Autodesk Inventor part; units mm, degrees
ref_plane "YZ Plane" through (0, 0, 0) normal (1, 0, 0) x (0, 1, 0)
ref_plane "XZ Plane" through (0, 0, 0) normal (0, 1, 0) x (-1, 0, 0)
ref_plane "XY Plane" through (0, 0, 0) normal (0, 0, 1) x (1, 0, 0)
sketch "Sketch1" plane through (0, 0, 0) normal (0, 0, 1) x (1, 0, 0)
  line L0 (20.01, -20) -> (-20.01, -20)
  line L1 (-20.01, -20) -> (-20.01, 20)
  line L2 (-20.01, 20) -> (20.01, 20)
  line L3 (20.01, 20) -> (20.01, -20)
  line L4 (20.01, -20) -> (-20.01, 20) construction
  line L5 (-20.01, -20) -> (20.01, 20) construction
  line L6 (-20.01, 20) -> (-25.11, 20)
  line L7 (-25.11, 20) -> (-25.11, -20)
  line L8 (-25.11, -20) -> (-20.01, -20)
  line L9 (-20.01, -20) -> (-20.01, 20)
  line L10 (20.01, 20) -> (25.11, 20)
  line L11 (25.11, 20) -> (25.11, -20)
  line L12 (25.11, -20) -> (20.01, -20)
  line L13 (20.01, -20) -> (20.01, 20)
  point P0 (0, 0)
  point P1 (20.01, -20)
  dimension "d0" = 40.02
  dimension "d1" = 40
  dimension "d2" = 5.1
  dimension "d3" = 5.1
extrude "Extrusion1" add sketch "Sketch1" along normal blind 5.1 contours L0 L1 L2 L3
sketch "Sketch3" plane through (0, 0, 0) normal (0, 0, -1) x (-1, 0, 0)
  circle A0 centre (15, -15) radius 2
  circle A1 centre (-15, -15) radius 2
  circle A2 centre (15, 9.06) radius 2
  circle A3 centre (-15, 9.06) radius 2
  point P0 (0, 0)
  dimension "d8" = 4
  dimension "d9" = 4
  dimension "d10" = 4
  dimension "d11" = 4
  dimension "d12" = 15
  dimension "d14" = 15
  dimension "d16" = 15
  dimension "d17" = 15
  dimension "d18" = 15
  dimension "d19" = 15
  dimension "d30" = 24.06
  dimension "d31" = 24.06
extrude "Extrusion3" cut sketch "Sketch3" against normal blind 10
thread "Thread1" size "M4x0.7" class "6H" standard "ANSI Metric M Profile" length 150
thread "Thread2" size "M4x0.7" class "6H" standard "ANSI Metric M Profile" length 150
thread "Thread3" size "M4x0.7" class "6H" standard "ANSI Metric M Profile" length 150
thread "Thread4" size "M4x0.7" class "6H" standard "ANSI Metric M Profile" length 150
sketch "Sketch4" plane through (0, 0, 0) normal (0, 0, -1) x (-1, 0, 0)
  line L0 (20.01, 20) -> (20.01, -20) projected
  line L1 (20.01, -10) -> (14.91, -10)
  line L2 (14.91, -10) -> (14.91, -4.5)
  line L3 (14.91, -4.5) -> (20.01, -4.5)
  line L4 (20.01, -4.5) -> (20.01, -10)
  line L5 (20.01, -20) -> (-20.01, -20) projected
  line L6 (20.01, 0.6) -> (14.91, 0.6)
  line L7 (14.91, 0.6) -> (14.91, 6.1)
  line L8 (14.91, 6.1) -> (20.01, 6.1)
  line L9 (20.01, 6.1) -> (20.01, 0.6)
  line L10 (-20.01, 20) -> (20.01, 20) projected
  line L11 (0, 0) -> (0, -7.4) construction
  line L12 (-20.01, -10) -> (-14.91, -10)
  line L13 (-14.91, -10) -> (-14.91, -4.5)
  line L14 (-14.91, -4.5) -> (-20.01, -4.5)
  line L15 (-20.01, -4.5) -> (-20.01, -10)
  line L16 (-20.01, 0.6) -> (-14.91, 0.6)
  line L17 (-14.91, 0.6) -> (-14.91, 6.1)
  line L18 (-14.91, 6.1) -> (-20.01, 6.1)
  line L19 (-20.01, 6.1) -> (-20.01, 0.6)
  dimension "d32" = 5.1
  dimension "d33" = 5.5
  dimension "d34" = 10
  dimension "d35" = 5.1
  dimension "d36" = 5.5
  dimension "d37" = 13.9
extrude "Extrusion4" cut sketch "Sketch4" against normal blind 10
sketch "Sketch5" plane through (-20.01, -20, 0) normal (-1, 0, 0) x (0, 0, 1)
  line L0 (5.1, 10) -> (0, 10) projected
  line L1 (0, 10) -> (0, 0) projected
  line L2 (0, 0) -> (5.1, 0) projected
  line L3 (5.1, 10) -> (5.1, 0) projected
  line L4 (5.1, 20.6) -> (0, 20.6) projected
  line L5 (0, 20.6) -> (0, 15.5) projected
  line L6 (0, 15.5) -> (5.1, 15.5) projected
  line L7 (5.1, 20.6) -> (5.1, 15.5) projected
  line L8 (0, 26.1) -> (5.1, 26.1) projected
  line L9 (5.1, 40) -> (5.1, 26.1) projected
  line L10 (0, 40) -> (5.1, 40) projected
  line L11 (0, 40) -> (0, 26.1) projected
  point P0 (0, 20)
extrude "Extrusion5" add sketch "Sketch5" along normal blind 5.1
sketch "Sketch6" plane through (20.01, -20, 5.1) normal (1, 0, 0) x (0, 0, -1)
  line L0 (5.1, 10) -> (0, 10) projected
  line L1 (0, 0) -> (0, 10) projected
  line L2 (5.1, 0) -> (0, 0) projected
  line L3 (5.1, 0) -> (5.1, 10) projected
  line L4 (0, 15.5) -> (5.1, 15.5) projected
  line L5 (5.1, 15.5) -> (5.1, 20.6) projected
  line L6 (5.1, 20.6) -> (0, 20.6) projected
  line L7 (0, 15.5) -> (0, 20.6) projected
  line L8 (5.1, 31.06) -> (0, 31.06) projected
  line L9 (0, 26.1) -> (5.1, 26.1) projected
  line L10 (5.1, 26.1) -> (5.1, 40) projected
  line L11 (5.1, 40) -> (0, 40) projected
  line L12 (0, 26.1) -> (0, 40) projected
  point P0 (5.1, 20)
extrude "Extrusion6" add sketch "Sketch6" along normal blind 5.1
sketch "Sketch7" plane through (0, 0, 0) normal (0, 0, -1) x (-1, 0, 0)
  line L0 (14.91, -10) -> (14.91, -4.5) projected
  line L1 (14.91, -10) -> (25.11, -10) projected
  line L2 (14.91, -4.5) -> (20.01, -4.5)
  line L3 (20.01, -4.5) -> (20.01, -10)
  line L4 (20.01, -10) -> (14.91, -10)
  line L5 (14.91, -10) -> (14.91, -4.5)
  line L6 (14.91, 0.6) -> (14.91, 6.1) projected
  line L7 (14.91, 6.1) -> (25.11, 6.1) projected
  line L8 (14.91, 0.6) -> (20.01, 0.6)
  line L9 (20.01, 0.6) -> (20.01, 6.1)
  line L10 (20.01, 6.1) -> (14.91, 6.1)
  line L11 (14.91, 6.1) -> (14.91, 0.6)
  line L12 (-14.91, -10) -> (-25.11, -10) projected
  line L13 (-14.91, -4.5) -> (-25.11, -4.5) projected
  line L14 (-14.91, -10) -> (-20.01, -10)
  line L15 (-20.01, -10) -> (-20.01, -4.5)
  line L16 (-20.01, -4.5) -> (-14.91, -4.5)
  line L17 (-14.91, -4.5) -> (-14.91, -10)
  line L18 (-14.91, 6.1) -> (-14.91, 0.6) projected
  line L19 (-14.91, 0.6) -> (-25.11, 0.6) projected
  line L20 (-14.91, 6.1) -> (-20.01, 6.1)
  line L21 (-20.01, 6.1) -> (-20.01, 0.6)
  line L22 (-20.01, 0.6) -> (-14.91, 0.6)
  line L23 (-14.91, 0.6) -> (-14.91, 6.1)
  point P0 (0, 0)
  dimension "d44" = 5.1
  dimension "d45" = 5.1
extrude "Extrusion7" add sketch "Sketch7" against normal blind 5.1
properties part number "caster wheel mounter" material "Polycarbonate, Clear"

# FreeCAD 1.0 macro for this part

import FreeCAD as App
import Part
import Sketcher
from FreeCAD import Vector
Q = App.Units.Quantity


def add_polygon(sketch, points):
    """Adds a closed chain of lines whose ends are joined by coincident constraints."""
    first, n = sketch.GeometryCount, len(points)
    for a, b in zip(points, points[1:] + points[:1]):
        sketch.addGeometry(Part.LineSegment(App.Vector(*a, 0), App.Vector(*b, 0)), False)
    for i in range(n):
        sketch.addConstraint(Sketcher.Constraint("Coincident", first + i, 2, first + (i + 1) % n, 1))

doc = App.newDocument("Part")
body = doc.addObject("PartDesign::Body", "Body")

# Sketch on XY plane
sketch1 = doc.addObject("Sketcher::SketchObject", "Sketch")
body.addObject(sketch1)
sketch1.AttachmentSupport = (doc.XY_Plane, [""])
sketch1.MapMode = "FlatFace"
add_polygon(sketch1, [(-20, -20), (20, -20), (20, 20), (-20, 20)])  # lines 0-3
sketch1.addConstraint([
    Sketcher.Constraint("Horizontal", 0),
    Sketcher.Constraint("Vertical", 1),
    Sketcher.Constraint("Horizontal", 2),
    Sketcher.Constraint("Vertical", 3),
    Sketcher.Constraint("Symmetric", 0, 2, 2, 2, -1, 1),
    Sketcher.Constraint("DistanceY", 1, 1, 1, 2, Q("40 mm")),
    Sketcher.Constraint("DistanceX", 0, 1, 0, 2, Q("40.02 mm")),
])
pad1 = doc.addObject("PartDesign::Pad", "Pad")
body.addObject(pad1)
pad1.Profile = sketch1
pad1.Length = 5.1

# Sketch on XY plane
sketch2 = doc.addObject("Sketcher::SketchObject", "Sketch001")
body.addObject(sketch2)
sketch2.AttachmentSupport = (doc.XY_Plane, [""])
sketch2.MapMode = "FlatFace"
sketch2.addGeometry([
    Part.Circle(Vector(-15, -15, 0), Vector(0, 0, 1), 2),
    Part.Circle(Vector(15, -15, 0), Vector(0, 0, 1), 2),
    Part.Circle(Vector(-15, 9.1, 0), Vector(0, 0, 1), 2),
    Part.Circle(Vector(15, 9.1, 0), Vector(0, 0, 1), 2),
], False)
sketch2.addConstraint([
    Sketcher.Constraint("Equal", 0, 1),
    Sketcher.Constraint("Equal", 1, 2),
    Sketcher.Constraint("Equal", 2, 3),
    Sketcher.Constraint("Symmetric", 0, 3, 1, 3, -2),
    Sketcher.Constraint("Symmetric", 2, 3, 3, 3, -2),
    Sketcher.Constraint("Vertical", 0, 3, 2, 3),
    Sketcher.Constraint("Diameter", 0, Q("4 mm")),
    Sketcher.Constraint("DistanceX", 0, 3, -1, 1, Q("15 mm")),
    Sketcher.Constraint("DistanceY", 0, 3, -1, 1, Q("15 mm")),
    Sketcher.Constraint("DistanceY", 0, 3, 2, 3, Q("24.06 mm")),
])
pocket1 = doc.addObject("PartDesign::Pocket", "Pocket")
body.addObject(pocket1)
pocket1.Profile = sketch2
pocket1.Length = 10
pocket1.Reversed = True

# Sketch on XY plane
sketch3 = doc.addObject("Sketcher::SketchObject", "Sketch002")
body.addObject(sketch3)
sketch3.AttachmentSupport = (doc.XY_Plane, [""])
sketch3.MapMode = "FlatFace"
add_polygon(sketch3, [(-20, -10), (-20, -4), (-15, -4), (-15, -10)])  # lines 0-3
add_polygon(sketch3, [(-20, 1), (-20, 6), (-15, 6), (-15, 1)])  # lines 4-7
add_polygon(sketch3, [(20, -4), (20, -10), (15, -10), (15, -4)])  # lines 8-11
add_polygon(sketch3, [(20, 6), (20, 1), (15, 1), (15, 6)])  # lines 12-15
sketch3.addConstraint([
    Sketcher.Constraint("Vertical", 0),
    Sketcher.Constraint("Horizontal", 1),
    Sketcher.Constraint("Vertical", 2),
    Sketcher.Constraint("Horizontal", 3),
    Sketcher.Constraint("Vertical", 4),
    Sketcher.Constraint("Horizontal", 5),
    Sketcher.Constraint("Vertical", 6),
    Sketcher.Constraint("Horizontal", 7),
    Sketcher.Constraint("Vertical", 8),
    Sketcher.Constraint("Horizontal", 9),
    Sketcher.Constraint("Vertical", 10),
    Sketcher.Constraint("Horizontal", 11),
    Sketcher.Constraint("Vertical", 12),
    Sketcher.Constraint("Horizontal", 13),
    Sketcher.Constraint("Vertical", 14),
    Sketcher.Constraint("Horizontal", 15),
    Sketcher.Constraint("Symmetric", 3, 2, 8, 2, -2),
    Sketcher.Constraint("Symmetric", 1, 2, 10, 2, -2),
    Sketcher.Constraint("Symmetric", 7, 2, 12, 2, -2),
    Sketcher.Constraint("Symmetric", 5, 2, 14, 2, -2),
    Sketcher.Constraint("Vertical", 3, 2, 4, 2),
    Sketcher.Constraint("Vertical", 2, 2, 5, 2),
    Sketcher.Constraint("Equal", 2, 4),
    Sketcher.Constraint("DistanceX", 1, 1, 1, 2, Q("5.1 mm")),
    Sketcher.Constraint("DistanceY", 0, 1, 0, 2, Q("5.5 mm")),
    Sketcher.Constraint("DistanceY", 2, 2, -1, 1, Q("10 mm")),
    Sketcher.Constraint("DistanceY", 1, 2, 6, 2, Q("5.1 mm")),
    Sketcher.Constraint("DistanceX", 0, 2, -1, 1, Q("20.01 mm")),
])
pocket2 = doc.addObject("PartDesign::Pocket", "Pocket001")
body.addObject(pocket2)
pocket2.Profile = sketch3
pocket2.Length = 10
pocket2.Reversed = True

# Sketch on YZ plane
sketch4 = doc.addObject("Sketcher::SketchObject", "Sketch003")
body.addObject(sketch4)
sketch4.AttachmentSupport = (doc.YZ_Plane, [""])
sketch4.MapMode = "FlatFace"
sketch4.AttachmentOffset = App.Placement(Vector(0, 0, -20.01), App.Rotation())
add_polygon(sketch4, [(-20, 5), (-10, 5), (-10, 0), (-20, 0)])  # lines 0-3
add_polygon(sketch4, [(-4, 5), (1, 5), (1, 0), (-4, 0)])  # lines 4-7
add_polygon(sketch4, [(20, 0), (6, 0), (6, 5), (20, 5)])  # lines 8-11
sketch4.addConstraint([
    Sketcher.Constraint("Horizontal", 0),
    Sketcher.Constraint("Vertical", 1),
    Sketcher.Constraint("Horizontal", 2),
    Sketcher.Constraint("Vertical", 3),
    Sketcher.Constraint("Horizontal", 4),
    Sketcher.Constraint("Vertical", 5),
    Sketcher.Constraint("Horizontal", 6),
    Sketcher.Constraint("Vertical", 7),
    Sketcher.Constraint("Horizontal", 8),
    Sketcher.Constraint("Vertical", 9),
    Sketcher.Constraint("Horizontal", 10),
    Sketcher.Constraint("Vertical", 11),
    Sketcher.Constraint("Symmetric", 2, 2, 11, 2, -1, 1),
    Sketcher.Constraint("PointOnObject", 1, 2, -1),
    Sketcher.Constraint("PointOnObject", 5, 2, -1),
    Sketcher.Constraint("Horizontal", 3, 2, 4, 2),
    Sketcher.Constraint("Horizontal", 7, 2, 9, 2),
    Sketcher.Constraint("Equal", 6, 1),
    Sketcher.Constraint("DistanceX", 0, 1, 0, 2, Q("10 mm")),
    Sketcher.Constraint("DistanceX", 4, 1, 4, 2, Q("5.1 mm")),
    Sketcher.Constraint("DistanceX", 8, 2, 8, 1, Q("13.9 mm")),
    Sketcher.Constraint("DistanceX", 0, 2, -1, 1, Q("10 mm")),
    Sketcher.Constraint("DistanceX", -1, 1, 4, 2, Q("0.6 mm")),
])
pad2 = doc.addObject("PartDesign::Pad", "Pad001")
body.addObject(pad2)
pad2.Profile = sketch4
pad2.Length = 5.1
pad2.Reversed = True

# Sketch on YZ plane
sketch5 = doc.addObject("Sketcher::SketchObject", "Sketch004")
body.addObject(sketch5)
sketch5.AttachmentSupport = (doc.YZ_Plane, [""])
sketch5.MapMode = "FlatFace"
sketch5.AttachmentOffset = App.Placement(Vector(0, 0, 20.01), App.Rotation())
add_polygon(sketch5, [(-20, 0), (-10, 0), (-10, 5), (-20, 5)])  # lines 0-3
add_polygon(sketch5, [(1, 5), (-4, 5), (-4, 0), (1, 0)])  # lines 4-7
add_polygon(sketch5, [(6, 0), (20, 0), (20, 5), (6, 5)])  # lines 8-11
sketch5.addConstraint([
    Sketcher.Constraint("Horizontal", 0),
    Sketcher.Constraint("Vertical", 1),
    Sketcher.Constraint("Horizontal", 2),
    Sketcher.Constraint("Vertical", 3),
    Sketcher.Constraint("Horizontal", 4),
    Sketcher.Constraint("Vertical", 5),
    Sketcher.Constraint("Horizontal", 6),
    Sketcher.Constraint("Vertical", 7),
    Sketcher.Constraint("Horizontal", 8),
    Sketcher.Constraint("Vertical", 9),
    Sketcher.Constraint("Horizontal", 10),
    Sketcher.Constraint("Vertical", 11),
    Sketcher.Constraint("Symmetric", 3, 2, 8, 2, -1, 1),
    Sketcher.Constraint("PointOnObject", 0, 2, -1),
    Sketcher.Constraint("PointOnObject", 5, 2, -1),
    Sketcher.Constraint("Horizontal", 2, 2, 4, 2),
    Sketcher.Constraint("Horizontal", 7, 2, 9, 2),
    Sketcher.Constraint("Equal", 6, 1),
    Sketcher.Constraint("DistanceX", 0, 1, 0, 2, Q("10 mm")),
    Sketcher.Constraint("DistanceX", 4, 2, 4, 1, Q("5.1 mm")),
    Sketcher.Constraint("DistanceX", 8, 1, 8, 2, Q("13.9 mm")),
    Sketcher.Constraint("DistanceX", 0, 2, -1, 1, Q("10 mm")),
    Sketcher.Constraint("DistanceX", 4, 2, -1, 1, Q("4.5 mm")),
])
pad3 = doc.addObject("PartDesign::Pad", "Pad002")
body.addObject(pad3)
pad3.Profile = sketch5
pad3.Length = 5.1

# Sketch on XY plane
sketch6 = doc.addObject("Sketcher::SketchObject", "Sketch005")
body.addObject(sketch6)
sketch6.AttachmentSupport = (doc.XY_Plane, [""])
sketch6.MapMode = "FlatFace"
add_polygon(sketch6, [(-15, -4), (-15, -10), (-20, -10), (-20, -4)])  # lines 0-3
add_polygon(sketch6, [(-15, 6), (-15, 1), (-20, 1), (-20, 6)])  # lines 4-7
add_polygon(sketch6, [(20, -10), (15, -10), (15, -4), (20, -4)])  # lines 8-11
add_polygon(sketch6, [(15, 1), (15, 6), (20, 6), (20, 1)])  # lines 12-15
sketch6.addConstraint([
    Sketcher.Constraint("Vertical", 0),
    Sketcher.Constraint("Horizontal", 1),
    Sketcher.Constraint("Vertical", 2),
    Sketcher.Constraint("Horizontal", 3),
    Sketcher.Constraint("Vertical", 4),
    Sketcher.Constraint("Horizontal", 5),
    Sketcher.Constraint("Vertical", 6),
    Sketcher.Constraint("Horizontal", 7),
    Sketcher.Constraint("Horizontal", 8),
    Sketcher.Constraint("Vertical", 9),
    Sketcher.Constraint("Horizontal", 10),
    Sketcher.Constraint("Vertical", 11),
    Sketcher.Constraint("Vertical", 12),
    Sketcher.Constraint("Horizontal", 13),
    Sketcher.Constraint("Vertical", 14),
    Sketcher.Constraint("Horizontal", 15),
    Sketcher.Constraint("Symmetric", 0, 2, 8, 2, -2),
    Sketcher.Constraint("Symmetric", 2, 2, 10, 2, -2),
    Sketcher.Constraint("Symmetric", 7, 2, 12, 2, -2),
    Sketcher.Constraint("Symmetric", 5, 2, 14, 2, -2),
    Sketcher.Constraint("Vertical", 3, 2, 4, 2),
    Sketcher.Constraint("Vertical", 2, 2, 5, 2),
    Sketcher.Constraint("Equal", 2, 4),
    Sketcher.Constraint("DistanceX", 1, 2, 1, 1, Q("5.1 mm")),
    Sketcher.Constraint("DistanceY", 3, 2, 4, 2, Q("5.1 mm")),
    Sketcher.Constraint("DistanceY", 0, 2, 0, 1, Q("5.5 mm")),
    Sketcher.Constraint("DistanceY", 0, 2, -1, 1, Q("10 mm")),
    Sketcher.Constraint("DistanceX", 0, 2, -1, 1, Q("14.91 mm")),
])
pad4 = doc.addObject("PartDesign::Pad", "Pad003")
body.addObject(pad4)
pad4.Profile = sketch6
pad4.Length = 5.1

doc.recompute()
